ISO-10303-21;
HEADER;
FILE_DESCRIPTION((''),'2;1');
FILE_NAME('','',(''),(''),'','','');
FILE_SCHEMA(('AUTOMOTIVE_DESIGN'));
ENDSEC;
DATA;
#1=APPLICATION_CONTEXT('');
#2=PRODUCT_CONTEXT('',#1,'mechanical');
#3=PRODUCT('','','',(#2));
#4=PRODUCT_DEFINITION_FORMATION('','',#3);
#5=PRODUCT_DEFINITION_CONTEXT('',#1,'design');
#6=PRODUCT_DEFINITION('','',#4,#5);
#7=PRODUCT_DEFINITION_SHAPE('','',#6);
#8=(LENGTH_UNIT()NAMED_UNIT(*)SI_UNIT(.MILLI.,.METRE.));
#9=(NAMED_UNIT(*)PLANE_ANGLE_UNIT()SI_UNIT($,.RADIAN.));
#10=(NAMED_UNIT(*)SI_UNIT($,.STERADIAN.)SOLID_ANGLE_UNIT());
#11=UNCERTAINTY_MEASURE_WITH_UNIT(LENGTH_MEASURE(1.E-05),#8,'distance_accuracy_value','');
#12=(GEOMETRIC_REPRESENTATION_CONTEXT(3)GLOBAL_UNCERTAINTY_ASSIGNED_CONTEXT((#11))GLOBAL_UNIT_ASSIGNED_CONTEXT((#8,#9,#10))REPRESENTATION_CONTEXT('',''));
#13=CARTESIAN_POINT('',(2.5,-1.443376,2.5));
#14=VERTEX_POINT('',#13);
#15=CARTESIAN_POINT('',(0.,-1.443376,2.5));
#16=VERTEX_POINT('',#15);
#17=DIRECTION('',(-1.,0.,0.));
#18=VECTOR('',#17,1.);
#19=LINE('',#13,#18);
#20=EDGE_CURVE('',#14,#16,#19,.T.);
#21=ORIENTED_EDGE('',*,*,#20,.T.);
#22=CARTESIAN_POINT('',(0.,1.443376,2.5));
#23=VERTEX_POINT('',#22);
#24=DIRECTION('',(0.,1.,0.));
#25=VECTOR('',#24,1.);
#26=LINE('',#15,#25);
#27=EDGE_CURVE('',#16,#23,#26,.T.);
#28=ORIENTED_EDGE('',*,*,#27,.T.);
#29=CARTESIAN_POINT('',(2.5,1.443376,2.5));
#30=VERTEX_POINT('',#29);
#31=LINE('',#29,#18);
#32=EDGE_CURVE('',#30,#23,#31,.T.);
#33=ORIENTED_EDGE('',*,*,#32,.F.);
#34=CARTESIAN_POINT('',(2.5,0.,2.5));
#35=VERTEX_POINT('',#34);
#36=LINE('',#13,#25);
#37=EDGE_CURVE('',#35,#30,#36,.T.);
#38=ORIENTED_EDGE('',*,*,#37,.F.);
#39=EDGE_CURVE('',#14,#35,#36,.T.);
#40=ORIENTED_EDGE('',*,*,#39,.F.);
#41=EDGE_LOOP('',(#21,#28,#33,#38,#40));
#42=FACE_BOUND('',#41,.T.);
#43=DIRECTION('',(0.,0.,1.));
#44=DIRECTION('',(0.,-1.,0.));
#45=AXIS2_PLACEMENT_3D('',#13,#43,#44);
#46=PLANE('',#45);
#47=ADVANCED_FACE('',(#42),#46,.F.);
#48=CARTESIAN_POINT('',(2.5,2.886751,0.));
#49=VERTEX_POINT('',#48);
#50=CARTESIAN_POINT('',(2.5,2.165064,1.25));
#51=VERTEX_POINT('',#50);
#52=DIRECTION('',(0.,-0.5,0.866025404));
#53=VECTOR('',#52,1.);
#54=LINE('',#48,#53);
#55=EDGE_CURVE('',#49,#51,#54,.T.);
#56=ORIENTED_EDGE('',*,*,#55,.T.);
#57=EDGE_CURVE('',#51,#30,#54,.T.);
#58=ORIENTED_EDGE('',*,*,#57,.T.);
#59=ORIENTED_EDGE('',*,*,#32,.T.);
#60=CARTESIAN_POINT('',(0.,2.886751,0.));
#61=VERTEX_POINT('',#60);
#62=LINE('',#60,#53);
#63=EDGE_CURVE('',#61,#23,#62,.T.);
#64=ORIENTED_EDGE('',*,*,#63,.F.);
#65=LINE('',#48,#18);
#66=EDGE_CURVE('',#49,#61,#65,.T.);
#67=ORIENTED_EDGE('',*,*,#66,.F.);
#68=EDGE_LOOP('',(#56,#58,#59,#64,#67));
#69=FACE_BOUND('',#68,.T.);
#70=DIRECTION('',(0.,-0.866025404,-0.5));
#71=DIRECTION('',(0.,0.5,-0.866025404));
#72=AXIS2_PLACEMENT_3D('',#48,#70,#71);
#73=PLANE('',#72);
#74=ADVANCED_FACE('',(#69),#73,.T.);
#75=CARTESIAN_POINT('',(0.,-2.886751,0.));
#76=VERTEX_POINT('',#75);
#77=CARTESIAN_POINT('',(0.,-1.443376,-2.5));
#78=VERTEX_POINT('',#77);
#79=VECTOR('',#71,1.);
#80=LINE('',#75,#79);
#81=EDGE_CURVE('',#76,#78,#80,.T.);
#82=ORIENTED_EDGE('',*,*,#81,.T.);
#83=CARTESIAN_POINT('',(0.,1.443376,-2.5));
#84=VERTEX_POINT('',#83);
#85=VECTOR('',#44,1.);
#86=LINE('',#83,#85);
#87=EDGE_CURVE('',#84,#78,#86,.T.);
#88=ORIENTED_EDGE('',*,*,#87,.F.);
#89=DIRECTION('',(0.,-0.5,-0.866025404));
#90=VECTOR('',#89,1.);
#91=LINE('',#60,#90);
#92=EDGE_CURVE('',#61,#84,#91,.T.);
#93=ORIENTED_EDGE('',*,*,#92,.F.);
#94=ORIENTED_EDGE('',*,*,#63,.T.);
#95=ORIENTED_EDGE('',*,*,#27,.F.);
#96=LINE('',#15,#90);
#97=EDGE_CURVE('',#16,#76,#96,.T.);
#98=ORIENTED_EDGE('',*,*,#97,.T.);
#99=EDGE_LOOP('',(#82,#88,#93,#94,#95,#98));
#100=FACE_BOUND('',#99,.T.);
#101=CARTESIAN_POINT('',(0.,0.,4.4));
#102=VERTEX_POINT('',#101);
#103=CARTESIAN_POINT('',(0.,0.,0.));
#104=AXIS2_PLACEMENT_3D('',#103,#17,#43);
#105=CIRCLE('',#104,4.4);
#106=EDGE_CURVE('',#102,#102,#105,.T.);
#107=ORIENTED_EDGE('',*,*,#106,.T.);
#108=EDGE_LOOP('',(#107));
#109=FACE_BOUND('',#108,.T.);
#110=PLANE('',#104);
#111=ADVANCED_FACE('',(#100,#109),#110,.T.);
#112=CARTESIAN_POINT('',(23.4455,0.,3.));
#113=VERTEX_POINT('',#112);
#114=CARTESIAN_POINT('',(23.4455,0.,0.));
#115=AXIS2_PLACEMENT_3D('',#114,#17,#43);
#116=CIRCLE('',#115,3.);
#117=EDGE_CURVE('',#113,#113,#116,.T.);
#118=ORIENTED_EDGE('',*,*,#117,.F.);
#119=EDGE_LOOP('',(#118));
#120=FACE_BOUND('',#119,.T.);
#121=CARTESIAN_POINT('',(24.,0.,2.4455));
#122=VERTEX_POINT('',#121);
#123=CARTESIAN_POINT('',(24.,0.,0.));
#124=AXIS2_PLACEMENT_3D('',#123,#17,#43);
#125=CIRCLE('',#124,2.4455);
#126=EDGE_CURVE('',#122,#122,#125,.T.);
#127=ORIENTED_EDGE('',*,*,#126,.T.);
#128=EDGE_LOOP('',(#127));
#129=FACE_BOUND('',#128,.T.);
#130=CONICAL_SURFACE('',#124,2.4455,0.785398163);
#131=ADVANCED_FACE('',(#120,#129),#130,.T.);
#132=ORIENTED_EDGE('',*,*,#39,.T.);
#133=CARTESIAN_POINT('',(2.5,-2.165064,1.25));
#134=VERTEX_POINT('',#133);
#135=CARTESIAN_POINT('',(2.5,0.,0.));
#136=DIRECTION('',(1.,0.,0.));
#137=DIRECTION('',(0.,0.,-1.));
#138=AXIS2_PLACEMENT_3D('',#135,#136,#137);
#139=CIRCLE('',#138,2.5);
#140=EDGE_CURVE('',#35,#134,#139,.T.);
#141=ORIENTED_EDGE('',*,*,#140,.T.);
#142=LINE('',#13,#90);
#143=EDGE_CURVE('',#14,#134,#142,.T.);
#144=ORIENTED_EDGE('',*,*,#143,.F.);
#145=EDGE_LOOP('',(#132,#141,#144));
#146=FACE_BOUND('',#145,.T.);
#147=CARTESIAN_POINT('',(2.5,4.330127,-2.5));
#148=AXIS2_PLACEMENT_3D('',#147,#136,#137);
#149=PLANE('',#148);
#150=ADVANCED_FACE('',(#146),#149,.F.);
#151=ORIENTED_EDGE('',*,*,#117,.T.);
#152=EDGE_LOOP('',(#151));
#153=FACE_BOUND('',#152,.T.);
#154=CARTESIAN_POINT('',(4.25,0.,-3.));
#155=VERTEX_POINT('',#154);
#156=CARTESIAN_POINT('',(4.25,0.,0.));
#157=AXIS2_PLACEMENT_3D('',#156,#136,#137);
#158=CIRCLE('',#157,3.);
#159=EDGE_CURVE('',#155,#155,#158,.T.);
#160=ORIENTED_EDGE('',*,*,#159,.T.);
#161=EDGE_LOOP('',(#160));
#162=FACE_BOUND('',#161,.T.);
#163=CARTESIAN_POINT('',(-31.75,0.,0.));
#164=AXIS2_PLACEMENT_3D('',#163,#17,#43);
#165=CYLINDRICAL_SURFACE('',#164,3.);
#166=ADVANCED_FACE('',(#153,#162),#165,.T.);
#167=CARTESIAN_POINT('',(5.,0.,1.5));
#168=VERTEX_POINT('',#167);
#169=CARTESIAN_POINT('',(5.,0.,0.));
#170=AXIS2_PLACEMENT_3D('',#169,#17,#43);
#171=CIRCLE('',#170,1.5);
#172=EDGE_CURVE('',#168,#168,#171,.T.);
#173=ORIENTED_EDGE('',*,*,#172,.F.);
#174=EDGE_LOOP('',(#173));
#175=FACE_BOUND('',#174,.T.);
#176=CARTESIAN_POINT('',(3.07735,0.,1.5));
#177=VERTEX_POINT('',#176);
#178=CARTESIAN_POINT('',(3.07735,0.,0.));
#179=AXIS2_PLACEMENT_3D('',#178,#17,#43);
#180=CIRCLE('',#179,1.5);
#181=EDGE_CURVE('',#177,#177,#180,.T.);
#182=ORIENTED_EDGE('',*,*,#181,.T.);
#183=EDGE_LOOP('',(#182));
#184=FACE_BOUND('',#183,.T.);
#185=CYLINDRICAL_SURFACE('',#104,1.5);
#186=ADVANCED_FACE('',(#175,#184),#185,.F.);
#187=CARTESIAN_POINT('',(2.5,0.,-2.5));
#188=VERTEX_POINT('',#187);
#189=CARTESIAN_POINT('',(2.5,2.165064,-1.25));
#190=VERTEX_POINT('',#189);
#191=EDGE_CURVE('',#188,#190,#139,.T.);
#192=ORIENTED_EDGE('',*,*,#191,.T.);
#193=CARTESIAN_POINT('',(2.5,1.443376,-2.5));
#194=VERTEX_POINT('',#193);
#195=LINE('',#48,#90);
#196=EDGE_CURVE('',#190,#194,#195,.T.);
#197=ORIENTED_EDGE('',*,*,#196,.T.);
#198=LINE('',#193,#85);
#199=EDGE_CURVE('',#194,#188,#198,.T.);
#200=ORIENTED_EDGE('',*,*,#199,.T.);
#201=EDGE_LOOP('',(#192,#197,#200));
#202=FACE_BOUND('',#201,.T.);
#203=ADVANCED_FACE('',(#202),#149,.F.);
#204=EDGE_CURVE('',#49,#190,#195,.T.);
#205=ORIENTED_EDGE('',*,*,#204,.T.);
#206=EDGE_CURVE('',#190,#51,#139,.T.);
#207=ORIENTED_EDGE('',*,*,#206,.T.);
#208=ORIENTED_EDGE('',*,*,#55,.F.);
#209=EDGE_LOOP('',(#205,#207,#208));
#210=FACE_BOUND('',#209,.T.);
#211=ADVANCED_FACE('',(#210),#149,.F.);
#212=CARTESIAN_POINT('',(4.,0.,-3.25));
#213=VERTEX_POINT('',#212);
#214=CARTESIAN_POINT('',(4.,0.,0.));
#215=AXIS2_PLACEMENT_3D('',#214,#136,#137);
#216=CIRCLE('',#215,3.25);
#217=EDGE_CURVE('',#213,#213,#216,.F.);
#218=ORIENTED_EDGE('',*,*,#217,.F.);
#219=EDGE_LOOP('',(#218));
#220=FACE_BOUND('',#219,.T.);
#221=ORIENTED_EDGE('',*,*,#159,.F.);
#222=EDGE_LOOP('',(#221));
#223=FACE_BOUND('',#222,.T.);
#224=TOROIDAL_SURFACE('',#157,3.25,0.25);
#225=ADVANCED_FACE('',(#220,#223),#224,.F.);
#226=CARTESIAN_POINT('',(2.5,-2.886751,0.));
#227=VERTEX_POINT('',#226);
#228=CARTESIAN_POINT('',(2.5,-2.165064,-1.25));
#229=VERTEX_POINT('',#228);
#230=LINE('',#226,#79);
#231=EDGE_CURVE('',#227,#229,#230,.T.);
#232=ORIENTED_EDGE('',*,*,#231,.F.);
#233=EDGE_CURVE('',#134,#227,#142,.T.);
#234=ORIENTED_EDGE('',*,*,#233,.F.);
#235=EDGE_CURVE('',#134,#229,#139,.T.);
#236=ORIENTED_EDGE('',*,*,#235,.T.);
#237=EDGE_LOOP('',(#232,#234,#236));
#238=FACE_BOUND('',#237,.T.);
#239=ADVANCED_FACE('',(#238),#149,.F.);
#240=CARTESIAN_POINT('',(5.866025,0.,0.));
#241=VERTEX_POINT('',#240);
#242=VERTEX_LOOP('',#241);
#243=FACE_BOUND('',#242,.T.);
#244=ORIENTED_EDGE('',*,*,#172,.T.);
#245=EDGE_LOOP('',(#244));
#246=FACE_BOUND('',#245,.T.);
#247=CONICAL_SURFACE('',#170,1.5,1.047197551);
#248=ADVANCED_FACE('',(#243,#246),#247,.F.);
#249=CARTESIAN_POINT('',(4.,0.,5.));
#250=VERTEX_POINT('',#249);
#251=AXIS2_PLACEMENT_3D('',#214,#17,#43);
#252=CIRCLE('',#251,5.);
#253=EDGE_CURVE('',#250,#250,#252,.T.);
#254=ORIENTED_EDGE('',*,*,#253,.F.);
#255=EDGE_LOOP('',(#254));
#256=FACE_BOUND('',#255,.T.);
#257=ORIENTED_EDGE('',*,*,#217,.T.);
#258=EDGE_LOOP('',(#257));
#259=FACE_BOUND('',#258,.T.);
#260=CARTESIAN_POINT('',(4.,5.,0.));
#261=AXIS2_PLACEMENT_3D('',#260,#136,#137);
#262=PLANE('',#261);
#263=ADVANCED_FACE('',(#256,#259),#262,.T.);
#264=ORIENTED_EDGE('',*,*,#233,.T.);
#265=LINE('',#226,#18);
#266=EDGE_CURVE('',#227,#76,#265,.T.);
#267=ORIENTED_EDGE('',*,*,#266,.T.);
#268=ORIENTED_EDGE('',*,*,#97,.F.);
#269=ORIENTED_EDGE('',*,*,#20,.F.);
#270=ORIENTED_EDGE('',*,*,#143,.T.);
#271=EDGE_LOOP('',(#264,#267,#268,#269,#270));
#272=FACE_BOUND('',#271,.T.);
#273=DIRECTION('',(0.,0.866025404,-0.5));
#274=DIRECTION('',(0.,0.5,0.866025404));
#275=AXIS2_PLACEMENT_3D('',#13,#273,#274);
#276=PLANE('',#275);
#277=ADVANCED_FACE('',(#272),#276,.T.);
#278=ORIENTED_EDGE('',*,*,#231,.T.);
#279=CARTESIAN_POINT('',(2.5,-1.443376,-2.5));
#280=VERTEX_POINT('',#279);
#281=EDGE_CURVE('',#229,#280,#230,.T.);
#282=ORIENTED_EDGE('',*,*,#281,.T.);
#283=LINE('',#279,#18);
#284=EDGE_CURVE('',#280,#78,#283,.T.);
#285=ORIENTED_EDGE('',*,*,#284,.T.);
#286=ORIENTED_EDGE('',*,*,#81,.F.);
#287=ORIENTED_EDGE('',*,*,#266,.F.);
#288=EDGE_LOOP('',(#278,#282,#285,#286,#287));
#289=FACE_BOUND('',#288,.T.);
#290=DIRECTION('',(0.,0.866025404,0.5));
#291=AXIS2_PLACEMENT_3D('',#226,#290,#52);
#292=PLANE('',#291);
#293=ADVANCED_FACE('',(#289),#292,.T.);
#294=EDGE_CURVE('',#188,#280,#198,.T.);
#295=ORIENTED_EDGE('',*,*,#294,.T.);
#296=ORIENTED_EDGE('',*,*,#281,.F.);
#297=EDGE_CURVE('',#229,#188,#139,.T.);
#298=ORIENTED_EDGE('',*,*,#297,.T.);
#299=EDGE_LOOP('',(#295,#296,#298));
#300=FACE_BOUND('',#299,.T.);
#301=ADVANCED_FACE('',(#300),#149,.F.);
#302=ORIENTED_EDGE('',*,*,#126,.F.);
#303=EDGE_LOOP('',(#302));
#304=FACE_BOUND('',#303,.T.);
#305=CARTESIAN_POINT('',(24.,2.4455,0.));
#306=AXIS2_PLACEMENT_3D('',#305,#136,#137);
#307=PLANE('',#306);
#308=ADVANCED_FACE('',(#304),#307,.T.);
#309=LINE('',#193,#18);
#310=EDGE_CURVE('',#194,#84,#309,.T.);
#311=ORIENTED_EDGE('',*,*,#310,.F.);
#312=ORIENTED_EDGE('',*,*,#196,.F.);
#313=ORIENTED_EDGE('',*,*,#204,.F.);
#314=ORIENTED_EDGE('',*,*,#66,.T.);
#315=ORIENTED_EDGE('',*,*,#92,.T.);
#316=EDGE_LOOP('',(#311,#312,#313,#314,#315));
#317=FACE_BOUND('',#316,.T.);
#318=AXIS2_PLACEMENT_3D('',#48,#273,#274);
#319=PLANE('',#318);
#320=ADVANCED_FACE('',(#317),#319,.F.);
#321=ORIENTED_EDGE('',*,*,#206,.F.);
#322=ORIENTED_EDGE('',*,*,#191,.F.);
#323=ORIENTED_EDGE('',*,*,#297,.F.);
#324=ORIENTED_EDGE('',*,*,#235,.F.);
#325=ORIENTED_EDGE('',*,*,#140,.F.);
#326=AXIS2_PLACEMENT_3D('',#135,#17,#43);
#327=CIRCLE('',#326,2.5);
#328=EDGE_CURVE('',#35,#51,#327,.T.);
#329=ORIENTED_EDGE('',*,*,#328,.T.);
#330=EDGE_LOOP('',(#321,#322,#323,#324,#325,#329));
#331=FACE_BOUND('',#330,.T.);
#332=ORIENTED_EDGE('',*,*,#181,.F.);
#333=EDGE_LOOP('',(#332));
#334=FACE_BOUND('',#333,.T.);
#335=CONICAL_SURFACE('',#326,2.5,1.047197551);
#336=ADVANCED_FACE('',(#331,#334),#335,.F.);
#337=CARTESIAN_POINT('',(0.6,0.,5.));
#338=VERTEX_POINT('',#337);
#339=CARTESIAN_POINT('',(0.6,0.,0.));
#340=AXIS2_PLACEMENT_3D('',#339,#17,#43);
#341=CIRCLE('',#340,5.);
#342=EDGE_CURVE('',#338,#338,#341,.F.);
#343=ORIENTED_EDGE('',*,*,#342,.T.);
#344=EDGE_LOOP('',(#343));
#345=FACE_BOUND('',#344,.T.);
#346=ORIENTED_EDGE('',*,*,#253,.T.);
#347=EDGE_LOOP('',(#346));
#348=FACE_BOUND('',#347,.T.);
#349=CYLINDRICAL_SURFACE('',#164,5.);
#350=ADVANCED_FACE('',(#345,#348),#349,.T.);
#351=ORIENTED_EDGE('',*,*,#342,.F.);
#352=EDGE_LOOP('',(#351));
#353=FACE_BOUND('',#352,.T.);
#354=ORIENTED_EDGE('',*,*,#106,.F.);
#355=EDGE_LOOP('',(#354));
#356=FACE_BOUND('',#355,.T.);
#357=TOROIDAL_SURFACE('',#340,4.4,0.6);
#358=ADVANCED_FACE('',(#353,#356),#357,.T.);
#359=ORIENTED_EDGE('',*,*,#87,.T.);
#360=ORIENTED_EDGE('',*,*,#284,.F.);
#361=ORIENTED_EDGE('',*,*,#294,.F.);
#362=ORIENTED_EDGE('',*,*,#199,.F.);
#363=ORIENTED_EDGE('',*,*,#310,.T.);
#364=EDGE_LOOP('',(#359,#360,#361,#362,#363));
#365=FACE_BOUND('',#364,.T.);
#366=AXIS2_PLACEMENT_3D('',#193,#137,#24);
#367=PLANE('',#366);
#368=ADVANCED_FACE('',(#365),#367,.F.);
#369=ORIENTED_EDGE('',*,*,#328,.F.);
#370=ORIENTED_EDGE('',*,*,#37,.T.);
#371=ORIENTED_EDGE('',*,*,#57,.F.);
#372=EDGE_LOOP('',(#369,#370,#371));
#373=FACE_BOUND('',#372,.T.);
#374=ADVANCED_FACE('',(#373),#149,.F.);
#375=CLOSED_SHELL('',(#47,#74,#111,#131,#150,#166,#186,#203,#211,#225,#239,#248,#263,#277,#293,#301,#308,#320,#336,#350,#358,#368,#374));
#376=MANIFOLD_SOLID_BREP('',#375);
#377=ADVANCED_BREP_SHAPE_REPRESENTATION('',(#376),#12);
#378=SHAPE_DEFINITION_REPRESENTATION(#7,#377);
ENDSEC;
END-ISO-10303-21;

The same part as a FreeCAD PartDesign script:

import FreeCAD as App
import Part
import Sketcher
Q = App.Units.Quantity


def edges_at(feature, points):
    """Names of the edges that pass closest to the given points."""
    edges = feature.Shape.Edges
    near = lambda p: min(range(len(edges)), key=lambda i: edges[i].distToShape(Part.Vertex(*p))[0])
    return sorted({f"Edge{near(p) + 1}" for p in points})

doc = App.newDocument("Part")
body = doc.addObject("PartDesign::Body", "Body")

# Sketch on XY plane
sketch1 = doc.addObject("Sketcher::SketchObject", "Sketch")
body.addObject(sketch1)
sketch1.AttachmentSupport = (doc.XY_Plane, [""])
sketch1.MapMode = "FlatFace"
sketch1.addGeometry([
    Part.LineSegment(App.Vector(0, 5, 0), App.Vector(0, 0, 0)),  # 0
    Part.LineSegment(App.Vector(0, 0, 0), App.Vector(24, 0, 0)),  # 1
    Part.LineSegment(App.Vector(24, 0, 0), App.Vector(24, 2.4455, 0)),  # 2
    Part.LineSegment(App.Vector(24, 2.4455, 0), App.Vector(23.4455, 3, 0)),  # 3
    Part.LineSegment(App.Vector(23.4455, 3, 0), App.Vector(4, 3, 0)),  # 4
    Part.LineSegment(App.Vector(4, 3, 0), App.Vector(4, 5, 0)),  # 5
    Part.LineSegment(App.Vector(4, 5, 0), App.Vector(0, 5, 0)),  # 6
], False)
sketch1.addConstraint([
    Sketcher.Constraint("Coincident", 0, 2, 1, 1),
    Sketcher.Constraint("Coincident", 1, 2, 2, 1),
    Sketcher.Constraint("Coincident", 2, 2, 3, 1),
    Sketcher.Constraint("Coincident", 3, 2, 4, 1),
    Sketcher.Constraint("Coincident", 4, 2, 5, 1),
    Sketcher.Constraint("Coincident", 5, 2, 6, 1),
    Sketcher.Constraint("Coincident", 6, 2, 0, 1),
    Sketcher.Constraint("Vertical", 0),
    Sketcher.Constraint("Horizontal", 1),
    Sketcher.Constraint("Vertical", 2),
    Sketcher.Constraint("Horizontal", 4),
    Sketcher.Constraint("Vertical", 5),
    Sketcher.Constraint("Horizontal", 6),
    Sketcher.Constraint("Coincident", 0, 2, -1, 1),
    Sketcher.Constraint("DistanceX", 1, 1, 1, 2, Q("24 mm")),
    Sketcher.Constraint("DistanceX", 6, 2, 6, 1, Q("4 mm")),
    Sketcher.Constraint("DistanceY", 0, 2, 0, 1, Q("5 mm")),
    Sketcher.Constraint("DistanceY", 5, 1, 5, 2, Q("2 mm")),
    Sketcher.Constraint("Angle", 3, Q("135 deg")),
    Sketcher.Constraint("DistanceX", 4, 2, 4, 1, Q("19.4455 mm")),
])
revolution = doc.addObject("PartDesign::Revolution", "Revolution")
body.addObject(revolution)
revolution.Profile = sketch1
revolution.ReferenceAxis = (sketch1, ["H_Axis"])
revolution.Angle = 360
doc.recompute()

fillet = doc.addObject("PartDesign::Fillet", "Fillet")
body.addObject(fillet)
fillet.Base = (revolution, edges_at(revolution, [(4, -3, 0)]))
fillet.Radius = 0.25
doc.recompute()

fillet2 = doc.addObject("PartDesign::Fillet", "Fillet001")
body.addObject(fillet2)
fillet2.Base = (fillet, edges_at(fillet, [(0, -5, 0)]))
fillet2.Radius = 0.6

# Sketch on YZ plane
sketch2 = doc.addObject("Sketcher::SketchObject", "Sketch001")
body.addObject(sketch2)
sketch2.AttachmentSupport = (doc.YZ_Plane, [""])
sketch2.MapMode = "FlatFace"
sketch2.addGeometry([
    Part.LineSegment(App.Vector(2.886751, 0, 0), App.Vector(1.443376, -2.5, 0)),  # 0
    Part.LineSegment(App.Vector(1.443376, -2.5, 0), App.Vector(-1.443376, -2.5, 0)),  # 1
    Part.LineSegment(App.Vector(-1.443376, -2.5, 0), App.Vector(-2.886751, 0, 0)),  # 2
    Part.LineSegment(App.Vector(-2.886751, 0, 0), App.Vector(-1.443376, 2.5, 0)),  # 3
    Part.LineSegment(App.Vector(-1.443376, 2.5, 0), App.Vector(1.443376, 2.5, 0)),  # 4
    Part.LineSegment(App.Vector(1.443376, 2.5, 0), App.Vector(2.886751, 0, 0)),  # 5
], False)
sketch2.addConstraint([
    Sketcher.Constraint("Coincident", 0, 2, 1, 1),
    Sketcher.Constraint("Coincident", 1, 2, 2, 1),
    Sketcher.Constraint("Coincident", 2, 2, 3, 1),
    Sketcher.Constraint("Coincident", 3, 2, 4, 1),
    Sketcher.Constraint("Coincident", 4, 2, 5, 1),
    Sketcher.Constraint("Coincident", 5, 2, 0, 1),
    Sketcher.Constraint("Horizontal", 1),
    Sketcher.Constraint("Horizontal", 4),
    Sketcher.Constraint("Symmetric", 0, 2, 3, 2, -1, 1),
    Sketcher.Constraint("Symmetric", 2, 2, 5, 2, -1, 1),
    Sketcher.Constraint("PointOnObject", 2, 2, -1),
    Sketcher.Constraint("Parallel", 2, 5),
    Sketcher.Constraint("Vertical", 1, 2, 3, 2),
    Sketcher.Constraint("Angle", 0, Q("-120 deg")),
    Sketcher.Constraint("DistanceY", 1, 2, 3, 2, Q("5 mm")),
    Sketcher.Constraint("DistanceX", 1, 2, 1, 1, Q("2.886751 mm")),
])
pocket1 = doc.addObject("PartDesign::Pocket", "Pocket")
body.addObject(pocket1)
pocket1.Profile = sketch2
pocket1.Length = 2.5
pocket1.Reversed = True

# Sketch on XY plane
sketch3 = doc.addObject("Sketcher::SketchObject", "Sketch002")
body.addObject(sketch3)
sketch3.AttachmentSupport = (doc.XY_Plane, [""])
sketch3.MapMode = "FlatFace"
sketch3.addGeometry([
    Part.LineSegment(App.Vector(2.5, 2.5, 0), App.Vector(0, 2.5, 0)),  # 0
    Part.LineSegment(App.Vector(0, 2.5, 0), App.Vector(0, 0, 0)),  # 1
    Part.LineSegment(App.Vector(0, 0, 0), App.Vector(5.866025, 0, 0)),  # 2
    Part.LineSegment(App.Vector(5.866025, 0, 0), App.Vector(5, 1.5, 0)),  # 3
    Part.LineSegment(App.Vector(5, 1.5, 0), App.Vector(3.07735, 1.5, 0)),  # 4
    Part.LineSegment(App.Vector(3.07735, 1.5, 0), App.Vector(2.5, 2.5, 0)),  # 5
], False)
sketch3.addConstraint([
    Sketcher.Constraint("Coincident", 0, 2, 1, 1),
    Sketcher.Constraint("Coincident", 1, 2, 2, 1),
    Sketcher.Constraint("Coincident", 2, 2, 3, 1),
    Sketcher.Constraint("Coincident", 3, 2, 4, 1),
    Sketcher.Constraint("Coincident", 4, 2, 5, 1),
    Sketcher.Constraint("Coincident", 5, 2, 0, 1),
    Sketcher.Constraint("Horizontal", 0),
    Sketcher.Constraint("Vertical", 1),
    Sketcher.Constraint("Horizontal", 2),
    Sketcher.Constraint("Horizontal", 4),
    Sketcher.Constraint("Coincident", 1, 2, -1, 1),
    Sketcher.Constraint("Parallel", 3, 5),
    Sketcher.Constraint("Equal", 0, 1),
    Sketcher.Constraint("Angle", 3, Q("120 deg")),
    Sketcher.Constraint("DistanceX", 0, 2, 0, 1, Q("2.5 mm")),
    Sketcher.Constraint("DistanceX", -1, 1, 3, 2, Q("5 mm")),
    Sketcher.Constraint("DistanceY", 3, 2, 0, 2, Q("1 mm")),
])
groove = doc.addObject("PartDesign::Groove", "Groove")
body.addObject(groove)
groove.Profile = sketch3
groove.ReferenceAxis = (sketch3, ["H_Axis"])
groove.Angle = 360

doc.recompute()
